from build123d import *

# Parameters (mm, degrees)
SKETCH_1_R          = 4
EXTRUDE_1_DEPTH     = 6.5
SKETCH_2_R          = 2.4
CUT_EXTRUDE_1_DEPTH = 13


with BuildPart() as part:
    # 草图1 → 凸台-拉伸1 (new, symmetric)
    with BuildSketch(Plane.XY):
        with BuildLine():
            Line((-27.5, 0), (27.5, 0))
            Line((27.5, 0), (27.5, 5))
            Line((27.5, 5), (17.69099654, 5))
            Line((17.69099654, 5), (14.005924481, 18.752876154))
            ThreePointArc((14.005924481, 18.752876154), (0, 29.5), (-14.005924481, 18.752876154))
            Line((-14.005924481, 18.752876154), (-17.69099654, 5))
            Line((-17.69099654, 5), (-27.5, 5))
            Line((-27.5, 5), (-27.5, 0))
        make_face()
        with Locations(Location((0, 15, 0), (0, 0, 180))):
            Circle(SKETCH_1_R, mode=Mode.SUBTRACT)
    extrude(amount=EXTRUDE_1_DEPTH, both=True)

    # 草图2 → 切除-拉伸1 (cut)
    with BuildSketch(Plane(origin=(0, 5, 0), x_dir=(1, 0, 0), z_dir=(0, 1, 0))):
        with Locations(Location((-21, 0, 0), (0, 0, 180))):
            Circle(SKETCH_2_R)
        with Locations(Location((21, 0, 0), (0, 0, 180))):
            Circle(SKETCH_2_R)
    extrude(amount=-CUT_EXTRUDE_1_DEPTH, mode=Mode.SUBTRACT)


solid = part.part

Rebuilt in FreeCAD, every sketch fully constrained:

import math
import FreeCAD as App
import Part
import Sketcher
from FreeCAD import Vector
Q = App.Units.Quantity

doc = App.newDocument("Part")
body = doc.addObject("PartDesign::Body", "Body")

# Sketch on XY plane
sketch1 = body.newObject("Sketcher::SketchObject", "Sketch")
sketch1.AttachmentSupport = (doc.getObject("XY_Plane"), [""])
sketch1.MapMode = "FlatFace"
sketch1.addGeometry([
    Part.LineSegment(Vector(-27.5, 0, 0), Vector(27.5, 0, 0)),  # 0
    Part.LineSegment(Vector(27.5, 0, 0), Vector(27.5, 5, 0)),  # 1
    Part.LineSegment(Vector(27.5, 5, 0), Vector(17.7, 5, 0)),  # 2
    Part.LineSegment(Vector(17.7, 5, 0), Vector(14, 18.8, 0)),  # 3
    Part.ArcOfCircle(Part.Circle(Vector(0, 15, 0), Vector(0, 0, 1), 14.5), math.radians(15), math.radians(165)),  # 4
    Part.LineSegment(Vector(-14, 18.8, 0), Vector(-17.7, 5, 0)),  # 5
    Part.LineSegment(Vector(-17.7, 5, 0), Vector(-27.5, 5, 0)),  # 6
    Part.LineSegment(Vector(-27.5, 5, 0), Vector(-27.5, 0, 0)),  # 7
    Part.Circle(Vector(0, 15, 0), Vector(0, 0, 1), 4),  # 8
], False)
sketch1.addConstraint([
    Sketcher.Constraint("Coincident", 0, 2, 1, 1),
    Sketcher.Constraint("Coincident", 1, 2, 2, 1),
    Sketcher.Constraint("Coincident", 2, 2, 3, 1),
    Sketcher.Constraint("Tangent", 3, 2, 4, 1),
    Sketcher.Constraint("Tangent", 4, 2, 5, 1),
    Sketcher.Constraint("Coincident", 5, 2, 6, 1),
    Sketcher.Constraint("Coincident", 6, 2, 7, 1),
    Sketcher.Constraint("Coincident", 7, 2, 0, 1),
    Sketcher.Constraint("Horizontal", 0),
    Sketcher.Constraint("Vertical", 1),
    Sketcher.Constraint("Horizontal", 2),
    Sketcher.Constraint("Horizontal", 6),
    Sketcher.Constraint("Vertical", 7),
    Sketcher.Constraint("Coincident", 8, 3, 4, 3),
    Sketcher.Constraint("Symmetric", 0, 2, 7, 2, -1, 1),
    Sketcher.Constraint("Symmetric", 3, 2, 4, 2, -2),
    Sketcher.Constraint("Horizontal", 2, 2, 5, 2),
    Sketcher.Constraint("Diameter", 8, 8.0),
    Sketcher.Constraint("Radius", 4, 14.5),
    Sketcher.Constraint("DistanceX", 0, 1, 0, 2, 55.0),
    Sketcher.Constraint("DistanceY", 1, 1, 1, 2, 5.0),
    Sketcher.Constraint("Angle", 3, Q("105 deg")),
    Sketcher.Constraint("DistanceY", -1, 1, 4, 3, 15.0),
])
pad1 = body.newObject("PartDesign::Pad", "Pad")
pad1.Profile = sketch1
pad1.Length = 13
pad1.Midplane = True

# Sketch on XZ plane
sketch2 = body.newObject("Sketcher::SketchObject", "Sketch001")
sketch2.AttachmentSupport = (doc.getObject("XZ_Plane"), [""])
sketch2.MapMode = "FlatFace"
sketch2.AttachmentOffset = App.Placement(Vector(0, 0, -5), App.Rotation())
sketch2.addGeometry([
    Part.Circle(Vector(-21, 0, 0), Vector(0, 0, 1), 2.4),
    Part.Circle(Vector(21, 0, 0), Vector(0, 0, 1), 2.4),
], False)
sketch2.addConstraint([
    Sketcher.Constraint("Equal", 0, 1),
    Sketcher.Constraint("Symmetric", 0, 3, 1, 3, -1, 1),
    Sketcher.Constraint("PointOnObject", 0, 3, -1),
    Sketcher.Constraint("Diameter", 0, 4.8),
    Sketcher.Constraint("DistanceX", 0, 3, -1, 1, 21.0),
])
pocket1 = body.newObject("PartDesign::Pocket", "Pocket")
pocket1.Profile = sketch2
pocket1.Length = 13
pocket1.Reversed = True

doc.recompute()
